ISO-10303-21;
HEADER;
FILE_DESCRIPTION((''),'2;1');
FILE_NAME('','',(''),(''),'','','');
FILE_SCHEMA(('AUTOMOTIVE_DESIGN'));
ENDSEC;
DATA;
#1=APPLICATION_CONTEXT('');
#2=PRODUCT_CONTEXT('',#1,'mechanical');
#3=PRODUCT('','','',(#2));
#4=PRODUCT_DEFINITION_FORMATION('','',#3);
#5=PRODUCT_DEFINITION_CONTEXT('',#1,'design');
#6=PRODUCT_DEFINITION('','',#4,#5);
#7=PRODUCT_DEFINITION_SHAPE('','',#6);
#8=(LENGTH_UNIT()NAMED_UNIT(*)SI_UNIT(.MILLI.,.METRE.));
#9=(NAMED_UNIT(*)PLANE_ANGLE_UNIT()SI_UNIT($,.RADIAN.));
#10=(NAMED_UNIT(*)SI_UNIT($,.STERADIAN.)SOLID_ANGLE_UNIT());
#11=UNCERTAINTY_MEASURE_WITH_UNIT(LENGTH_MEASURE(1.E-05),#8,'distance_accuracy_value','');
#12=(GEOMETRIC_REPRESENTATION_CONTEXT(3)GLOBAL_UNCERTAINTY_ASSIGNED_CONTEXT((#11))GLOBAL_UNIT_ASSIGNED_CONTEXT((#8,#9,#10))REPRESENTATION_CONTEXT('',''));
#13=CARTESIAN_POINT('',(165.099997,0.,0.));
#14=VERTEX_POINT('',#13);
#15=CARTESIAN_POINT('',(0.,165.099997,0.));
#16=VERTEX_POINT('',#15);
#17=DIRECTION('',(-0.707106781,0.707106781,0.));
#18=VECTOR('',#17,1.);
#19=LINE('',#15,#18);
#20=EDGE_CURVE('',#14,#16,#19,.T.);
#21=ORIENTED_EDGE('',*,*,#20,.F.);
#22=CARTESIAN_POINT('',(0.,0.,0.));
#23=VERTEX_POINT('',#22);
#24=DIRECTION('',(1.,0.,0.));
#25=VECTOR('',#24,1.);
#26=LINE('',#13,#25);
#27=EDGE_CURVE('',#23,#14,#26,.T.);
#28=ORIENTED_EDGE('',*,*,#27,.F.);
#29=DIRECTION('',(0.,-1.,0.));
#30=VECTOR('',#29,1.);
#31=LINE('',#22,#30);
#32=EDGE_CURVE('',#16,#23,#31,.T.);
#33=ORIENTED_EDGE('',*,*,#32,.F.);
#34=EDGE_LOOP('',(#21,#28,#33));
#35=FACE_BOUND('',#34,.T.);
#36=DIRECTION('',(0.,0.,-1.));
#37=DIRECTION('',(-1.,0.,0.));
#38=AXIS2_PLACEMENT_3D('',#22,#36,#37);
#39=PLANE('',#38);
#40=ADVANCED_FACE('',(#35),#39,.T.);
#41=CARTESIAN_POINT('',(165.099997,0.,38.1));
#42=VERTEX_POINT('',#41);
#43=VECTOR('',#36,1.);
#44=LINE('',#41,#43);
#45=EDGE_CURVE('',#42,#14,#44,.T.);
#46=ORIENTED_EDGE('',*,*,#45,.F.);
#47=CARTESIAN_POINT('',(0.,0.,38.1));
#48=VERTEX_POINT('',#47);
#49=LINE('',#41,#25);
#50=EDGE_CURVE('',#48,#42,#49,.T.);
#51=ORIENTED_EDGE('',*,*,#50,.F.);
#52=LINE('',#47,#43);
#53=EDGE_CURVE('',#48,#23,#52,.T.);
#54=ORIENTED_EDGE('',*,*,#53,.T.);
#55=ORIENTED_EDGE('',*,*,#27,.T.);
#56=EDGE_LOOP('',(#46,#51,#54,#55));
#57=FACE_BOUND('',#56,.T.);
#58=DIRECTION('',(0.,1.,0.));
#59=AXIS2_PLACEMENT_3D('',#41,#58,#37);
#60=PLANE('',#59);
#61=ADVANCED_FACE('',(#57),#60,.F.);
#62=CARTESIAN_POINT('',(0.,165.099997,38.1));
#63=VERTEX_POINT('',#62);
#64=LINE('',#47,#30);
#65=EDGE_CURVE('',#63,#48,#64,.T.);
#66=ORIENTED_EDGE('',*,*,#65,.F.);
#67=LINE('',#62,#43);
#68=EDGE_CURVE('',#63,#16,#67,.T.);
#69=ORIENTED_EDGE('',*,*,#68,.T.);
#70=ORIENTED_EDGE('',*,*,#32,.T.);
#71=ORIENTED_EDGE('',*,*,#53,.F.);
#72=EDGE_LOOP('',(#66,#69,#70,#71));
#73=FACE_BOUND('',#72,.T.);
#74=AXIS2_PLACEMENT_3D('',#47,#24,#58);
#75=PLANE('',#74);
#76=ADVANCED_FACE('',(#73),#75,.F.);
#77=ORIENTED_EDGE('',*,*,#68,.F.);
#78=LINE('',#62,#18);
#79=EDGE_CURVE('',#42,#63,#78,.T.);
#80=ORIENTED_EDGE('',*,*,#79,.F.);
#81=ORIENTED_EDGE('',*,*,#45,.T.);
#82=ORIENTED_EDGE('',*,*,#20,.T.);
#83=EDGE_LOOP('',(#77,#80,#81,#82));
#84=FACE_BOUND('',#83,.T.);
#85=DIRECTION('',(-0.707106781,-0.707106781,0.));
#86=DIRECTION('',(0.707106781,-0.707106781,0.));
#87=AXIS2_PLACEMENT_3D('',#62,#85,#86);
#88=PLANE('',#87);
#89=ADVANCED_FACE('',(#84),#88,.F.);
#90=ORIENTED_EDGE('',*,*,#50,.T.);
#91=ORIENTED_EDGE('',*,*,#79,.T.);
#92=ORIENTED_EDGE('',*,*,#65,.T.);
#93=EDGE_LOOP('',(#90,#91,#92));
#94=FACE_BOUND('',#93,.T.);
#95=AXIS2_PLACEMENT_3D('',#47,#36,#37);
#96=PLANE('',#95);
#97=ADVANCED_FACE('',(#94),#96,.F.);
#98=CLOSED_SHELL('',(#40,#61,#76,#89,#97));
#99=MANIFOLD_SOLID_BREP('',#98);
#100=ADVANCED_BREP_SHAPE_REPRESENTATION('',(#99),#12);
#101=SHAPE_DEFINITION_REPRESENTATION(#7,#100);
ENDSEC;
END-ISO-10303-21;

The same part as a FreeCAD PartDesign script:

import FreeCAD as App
import Part
import Sketcher

V = App.Vector
Q = App.Units.Quantity


def add_polygon(sketch, points):
    """Adds a closed chain of lines whose ends are joined by coincident constraints."""
    first, n = sketch.GeometryCount, len(points)
    for a, b in zip(points, points[1:] + points[:1]):
        sketch.addGeometry(Part.LineSegment(App.Vector(*a, 0), App.Vector(*b, 0)), False)
    for i in range(n):
        sketch.addConstraint(Sketcher.Constraint("Coincident", first + i, 2, first + (i + 1) % n, 1))

doc = App.newDocument("Part")
params = doc.addObject("Spreadsheet::Sheet", "Params")
for row, (alias, value) in enumerate([
    ("sketch1_width", "6.4999999 in"),
    ("pad1_length", "1.5 in"),
], start=1):
    params.set(f"A{row}", alias)
    params.set(f"B{row}", "=" + value)
    params.setAlias(f"B{row}", alias)

body = doc.addObject("PartDesign::Body", "Body")

sketch1 = body.newObject("Sketcher::SketchObject", "Sketch")
sketch1.AttachmentSupport = (doc.getObject("XY_Plane"), [""])
sketch1.MapMode = "FlatFace"
add_polygon(sketch1, [(0, 165.099997), (0, 0), (165.099997, 0)])
sketch1.addConstraint([
    Sketcher.Constraint("Vertical", 0),
    Sketcher.Constraint("Horizontal", 1),
    Sketcher.Constraint("Coincident", 0, 2, -1, 1),
    Sketcher.Constraint("Equal", 1, 0),
    Sketcher.Constraint("DistanceX", 1, 1, 1, 2, Q("6.4999999 in")),
])
sketch1.setExpression("Constraints[7]", "Params.sketch1_width")
pad1 = body.newObject("PartDesign::Pad", "Pad")
pad1.Profile = sketch1
pad1.setExpression("Length", "Params.pad1_length")

doc.recompute()
